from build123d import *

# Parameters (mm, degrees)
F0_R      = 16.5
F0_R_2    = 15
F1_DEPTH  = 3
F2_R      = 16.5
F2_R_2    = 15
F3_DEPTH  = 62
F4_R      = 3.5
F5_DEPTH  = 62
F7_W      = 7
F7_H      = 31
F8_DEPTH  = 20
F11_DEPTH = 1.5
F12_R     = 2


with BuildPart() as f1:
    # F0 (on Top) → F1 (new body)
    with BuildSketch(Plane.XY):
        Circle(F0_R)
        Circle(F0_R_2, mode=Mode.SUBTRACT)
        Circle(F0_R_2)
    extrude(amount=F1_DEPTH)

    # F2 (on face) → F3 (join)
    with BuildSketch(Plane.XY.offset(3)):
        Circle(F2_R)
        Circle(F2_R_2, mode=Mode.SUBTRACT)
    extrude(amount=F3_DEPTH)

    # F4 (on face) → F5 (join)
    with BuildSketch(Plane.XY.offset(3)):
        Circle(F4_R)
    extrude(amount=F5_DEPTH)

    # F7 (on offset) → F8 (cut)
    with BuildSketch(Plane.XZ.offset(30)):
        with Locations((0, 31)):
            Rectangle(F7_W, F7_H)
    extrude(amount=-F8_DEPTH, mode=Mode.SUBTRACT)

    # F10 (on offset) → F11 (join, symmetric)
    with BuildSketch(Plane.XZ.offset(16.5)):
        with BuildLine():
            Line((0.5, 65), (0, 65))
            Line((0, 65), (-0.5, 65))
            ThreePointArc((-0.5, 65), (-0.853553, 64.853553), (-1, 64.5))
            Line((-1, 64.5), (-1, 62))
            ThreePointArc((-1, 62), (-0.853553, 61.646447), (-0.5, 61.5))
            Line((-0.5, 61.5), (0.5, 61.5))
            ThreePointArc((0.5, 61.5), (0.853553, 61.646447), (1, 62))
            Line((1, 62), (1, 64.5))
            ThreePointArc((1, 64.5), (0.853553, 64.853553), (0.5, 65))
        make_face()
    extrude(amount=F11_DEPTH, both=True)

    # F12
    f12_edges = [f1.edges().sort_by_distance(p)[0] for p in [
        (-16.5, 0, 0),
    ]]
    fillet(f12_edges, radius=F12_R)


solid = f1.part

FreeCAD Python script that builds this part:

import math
import FreeCAD as App
import Part
import Sketcher


def edges_at(feature, points):
    """Names of the edges that pass closest to the given points."""
    edges = feature.Shape.Edges
    near = lambda p: min(range(len(edges)), key=lambda i: edges[i].distToShape(Part.Vertex(*p))[0])
    return sorted({f"Edge{near(p) + 1}" for p in points})

doc = App.newDocument("Part")
body = doc.addObject("PartDesign::Body", "Body")

sketch1 = body.newObject("Sketcher::SketchObject", "Sketch")
sketch1.AttachmentSupport = (doc.getObject("XY_Plane"), [""])
sketch1.MapMode = "FlatFace"
sketch1.addGeometry(Part.Circle(App.Vector(0, 0, 0), App.Vector(0, 0, 1), 16), False)
sketch1.addConstraint(Sketcher.Constraint("Coincident", 0, 3, -1, 1))
sketch1.addConstraint(Sketcher.Constraint("Diameter", 0, 33.0))
pad1 = body.newObject("PartDesign::Pad", "Pad")
pad1.Profile = sketch1
pad1.Length = 3

sketch2 = body.newObject("Sketcher::SketchObject", "Sketch001")
sketch2.AttachmentSupport = (doc.getObject("XY_Plane"), [""])
sketch2.MapMode = "FlatFace"
sketch2.AttachmentOffset = App.Placement(App.Vector(0, 0, 3), App.Rotation())
sketch2.addGeometry(Part.Circle(App.Vector(0, 0, 0), App.Vector(0, 0, 1), 16), False)
sketch2.addGeometry(Part.Circle(App.Vector(0, 0, 0), App.Vector(0, 0, 1), 15), False)
sketch2.addConstraint(Sketcher.Constraint("Coincident", 0, 3, -1, 1))
sketch2.addConstraint(Sketcher.Constraint("Coincident", 1, 3, -1, 1))
sketch2.addConstraint(Sketcher.Constraint("Diameter", 0, 33.0))
sketch2.addConstraint(Sketcher.Constraint("Diameter", 1, 30.0))
pad2 = body.newObject("PartDesign::Pad", "Pad001")
pad2.Profile = sketch2
pad2.Length = 62

sketch3 = body.newObject("Sketcher::SketchObject", "Sketch002")
sketch3.AttachmentSupport = (doc.getObject("XY_Plane"), [""])
sketch3.MapMode = "FlatFace"
sketch3.AttachmentOffset = App.Placement(App.Vector(0, 0, 3), App.Rotation())
sketch3.addGeometry(Part.Circle(App.Vector(0, 0, 0), App.Vector(0, 0, 1), 3.5), False)
sketch3.addConstraint(Sketcher.Constraint("Coincident", 0, 3, -1, 1))
sketch3.addConstraint(Sketcher.Constraint("Diameter", 0, 7.0))
pad3 = body.newObject("PartDesign::Pad", "Pad002")
pad3.Profile = sketch3
pad3.Length = 62

sketch4 = body.newObject("Sketcher::SketchObject", "Sketch003")
sketch4.AttachmentSupport = (doc.getObject("XZ_Plane"), [""])
sketch4.MapMode = "FlatFace"
sketch4.AttachmentOffset = App.Placement(App.Vector(0, 0, 30), App.Rotation())
sketch4.addGeometry(Part.LineSegment(App.Vector(-4, 46, 0), App.Vector(-4, 16, 0)), False)
sketch4.addGeometry(Part.LineSegment(App.Vector(-4, 16, 0), App.Vector(4, 16, 0)), False)
sketch4.addGeometry(Part.LineSegment(App.Vector(4, 16, 0), App.Vector(4, 46, 0)), False)
sketch4.addGeometry(Part.LineSegment(App.Vector(4, 46, 0), App.Vector(-4, 46, 0)), False)
sketch4.addConstraint(Sketcher.Constraint("Coincident", 0, 2, 1, 1))
sketch4.addConstraint(Sketcher.Constraint("Coincident", 1, 2, 2, 1))
sketch4.addConstraint(Sketcher.Constraint("Coincident", 2, 2, 3, 1))
sketch4.addConstraint(Sketcher.Constraint("Coincident", 3, 2, 0, 1))
sketch4.addConstraint(Sketcher.Constraint("Vertical", 0))
sketch4.addConstraint(Sketcher.Constraint("Horizontal", 1))
sketch4.addConstraint(Sketcher.Constraint("Vertical", 2))
sketch4.addConstraint(Sketcher.Constraint("Horizontal", 3))
sketch4.addConstraint(Sketcher.Constraint("DistanceX", 1, 1, 1, 2, 7.0))
sketch4.addConstraint(Sketcher.Constraint("DistanceY", 0, 2, 0, 1, 31.0))
sketch4.addConstraint(Sketcher.Constraint("DistanceX", 0, 2, -1, 1, 3.5))
sketch4.addConstraint(Sketcher.Constraint("DistanceY", -1, 1, 0, 2, 15.5))
pocket1 = body.newObject("PartDesign::Pocket", "Pocket")
pocket1.Profile = sketch4
pocket1.Length = 20

sketch5 = body.newObject("Sketcher::SketchObject", "Sketch004")
sketch5.AttachmentSupport = (doc.getObject("XZ_Plane"), [""])
sketch5.MapMode = "FlatFace"
sketch5.AttachmentOffset = App.Placement(App.Vector(0, 0, 16.5), App.Rotation())
sketch5.addGeometry(Part.LineSegment(App.Vector(0.5, 65, 0), App.Vector(-0.5, 65, 0)), False)
sketch5.addGeometry(Part.ArcOfCircle(Part.Circle(App.Vector(-0.5, 64.5, 0), App.Vector(0, 0, 1), 0.5), math.radians(90), math.radians(180)), False)
sketch5.addGeometry(Part.LineSegment(App.Vector(-1, 64.5, 0), App.Vector(-1, 62, 0)), False)
sketch5.addGeometry(Part.ArcOfCircle(Part.Circle(App.Vector(-0.5, 62, 0), App.Vector(0, 0, 1), 0.5), math.radians(-180), math.radians(-90)), False)
sketch5.addGeometry(Part.LineSegment(App.Vector(-0.5, 61.5, 0), App.Vector(0.5, 61.5, 0)), False)
sketch5.addGeometry(Part.ArcOfCircle(Part.Circle(App.Vector(0.5, 62, 0), App.Vector(0, 0, 1), 0.5), math.radians(-90), math.radians(0)), False)
sketch5.addGeometry(Part.LineSegment(App.Vector(1, 62, 0), App.Vector(1, 64.5, 0)), False)
sketch5.addGeometry(Part.ArcOfCircle(Part.Circle(App.Vector(0.5, 64.5, 0), App.Vector(0, 0, 1), 0.5), math.radians(0), math.radians(90)), False)
sketch5.addConstraint(Sketcher.Constraint("Coincident", 0, 2, 1, 1))
sketch5.addConstraint(Sketcher.Constraint("Coincident", 1, 2, 2, 1))
sketch5.addConstraint(Sketcher.Constraint("Coincident", 2, 2, 3, 1))
sketch5.addConstraint(Sketcher.Constraint("Coincident", 3, 2, 4, 1))
sketch5.addConstraint(Sketcher.Constraint("Coincident", 4, 2, 5, 1))
sketch5.addConstraint(Sketcher.Constraint("Coincident", 5, 2, 6, 1))
sketch5.addConstraint(Sketcher.Constraint("Coincident", 6, 2, 7, 1))
sketch5.addConstraint(Sketcher.Constraint("Coincident", 7, 2, 0, 1))
sketch5.addConstraint(Sketcher.Constraint("Horizontal", 0))
sketch5.addConstraint(Sketcher.Constraint("Vertical", 2))
sketch5.addConstraint(Sketcher.Constraint("Horizontal", 4))
sketch5.addConstraint(Sketcher.Constraint("Vertical", 6))
sketch5.addConstraint(Sketcher.Constraint("Equal", 1, 3))
sketch5.addConstraint(Sketcher.Constraint("Equal", 3, 5))
sketch5.addConstraint(Sketcher.Constraint("Equal", 5, 7))
sketch5.addConstraint(Sketcher.Constraint("Symmetric", 2, 2, 5, 2, -2))
sketch5.addConstraint(Sketcher.Constraint("Horizontal", 7, 3, 1, 2))
sketch5.addConstraint(Sketcher.Constraint("Horizontal", 5, 3, 2, 2))
sketch5.addConstraint(Sketcher.Constraint("Horizontal", 1, 2, 6, 2))
sketch5.addConstraint(Sketcher.Constraint("Vertical", 3, 3, 0, 2))
sketch5.addConstraint(Sketcher.Constraint("Vertical", 0, 2, 3, 2))
sketch5.addConstraint(Sketcher.Constraint("Vertical", 7, 3, 4, 2))
sketch5.addConstraint(Sketcher.Constraint("Vertical", 4, 2, 7, 2))
sketch5.addConstraint(Sketcher.Constraint("Radius", 1, 0.500001))
sketch5.addConstraint(Sketcher.Constraint("DistanceX", 0, 2, 0, 1, 1.0))
sketch5.addConstraint(Sketcher.Constraint("DistanceY", 2, 2, 2, 1, 2.5))
sketch5.addConstraint(Sketcher.Constraint("DistanceY", -1, 1, 3, 3, 62.000001))
pad4 = body.newObject("PartDesign::Pad", "Pad003")
pad4.Profile = sketch5
pad4.Length = 3
pad4.Midplane = True
doc.recompute()

fillet = body.newObject("PartDesign::Fillet", "Fillet")
fillet.Base = (pad4, edges_at(pad4, [(-16.5, 0, 0)]))
fillet.Radius = 2

doc.recompute()
